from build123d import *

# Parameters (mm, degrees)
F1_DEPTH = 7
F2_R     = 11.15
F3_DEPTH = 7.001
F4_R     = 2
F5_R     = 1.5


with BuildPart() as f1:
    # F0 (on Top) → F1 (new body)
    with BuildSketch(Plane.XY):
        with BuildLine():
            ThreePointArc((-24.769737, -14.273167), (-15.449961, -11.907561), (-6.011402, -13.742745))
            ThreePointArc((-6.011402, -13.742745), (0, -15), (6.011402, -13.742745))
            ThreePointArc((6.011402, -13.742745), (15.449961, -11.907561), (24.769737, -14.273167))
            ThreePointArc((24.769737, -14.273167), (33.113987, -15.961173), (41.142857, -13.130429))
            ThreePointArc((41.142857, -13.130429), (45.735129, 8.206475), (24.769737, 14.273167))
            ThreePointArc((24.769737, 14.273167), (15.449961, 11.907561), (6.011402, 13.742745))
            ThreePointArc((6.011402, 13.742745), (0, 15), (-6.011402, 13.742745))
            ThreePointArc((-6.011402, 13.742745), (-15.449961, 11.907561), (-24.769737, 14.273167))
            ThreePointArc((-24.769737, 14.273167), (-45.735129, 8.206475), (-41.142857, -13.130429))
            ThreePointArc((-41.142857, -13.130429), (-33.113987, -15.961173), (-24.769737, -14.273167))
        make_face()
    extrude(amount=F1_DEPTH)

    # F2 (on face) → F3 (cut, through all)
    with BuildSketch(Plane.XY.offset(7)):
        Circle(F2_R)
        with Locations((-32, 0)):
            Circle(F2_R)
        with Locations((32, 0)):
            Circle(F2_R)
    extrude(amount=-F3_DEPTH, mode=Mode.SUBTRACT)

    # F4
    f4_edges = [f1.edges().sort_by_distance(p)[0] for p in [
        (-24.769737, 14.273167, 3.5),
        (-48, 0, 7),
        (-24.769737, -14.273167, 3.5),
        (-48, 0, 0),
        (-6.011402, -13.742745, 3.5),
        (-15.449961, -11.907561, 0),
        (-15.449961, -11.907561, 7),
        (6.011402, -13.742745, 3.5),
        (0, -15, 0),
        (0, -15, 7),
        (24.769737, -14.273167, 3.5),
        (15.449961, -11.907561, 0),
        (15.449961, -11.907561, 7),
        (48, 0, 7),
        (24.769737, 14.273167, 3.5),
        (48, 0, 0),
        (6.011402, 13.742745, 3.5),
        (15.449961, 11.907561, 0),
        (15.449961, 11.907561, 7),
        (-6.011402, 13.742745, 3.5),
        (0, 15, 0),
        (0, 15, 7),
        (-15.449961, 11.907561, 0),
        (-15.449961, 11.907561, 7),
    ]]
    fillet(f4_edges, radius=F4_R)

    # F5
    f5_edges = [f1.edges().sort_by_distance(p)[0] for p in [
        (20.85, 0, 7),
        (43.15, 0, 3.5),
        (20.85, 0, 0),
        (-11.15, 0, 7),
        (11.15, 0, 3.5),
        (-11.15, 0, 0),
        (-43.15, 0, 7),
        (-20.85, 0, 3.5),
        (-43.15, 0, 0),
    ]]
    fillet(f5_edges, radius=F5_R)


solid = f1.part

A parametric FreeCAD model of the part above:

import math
import FreeCAD as App
import Part
import Sketcher

V = App.Vector


def edges_at(feature, points):
    """Names of the edges that pass closest to the given points."""
    edges = feature.Shape.Edges
    near = lambda p: min(range(len(edges)), key=lambda i: edges[i].distToShape(Part.Vertex(*p))[0])
    return sorted({f"Edge{near(p) + 1}" for p in points})

doc = App.newDocument("Part")
params = doc.addObject("Spreadsheet::Sheet", "Params")
for row, (alias, value) in enumerate([
    ("sketch1_radius", "16 mm"),
    ("pad1_length", "7 mm"),
    ("sketch2_diameter", "22.3 mm"),
    ("fillet_radius", "2 mm"),
    ("fillet2_radius", "1.5 mm"),
], start=1):
    params.set(f"A{row}", alias)
    params.set(f"B{row}", "=" + value)
    params.setAlias(f"B{row}", alias)

body = doc.addObject("PartDesign::Body", "Body")

# Sketch on XY plane
sketch1 = doc.addObject("Sketcher::SketchObject", "Sketch")
body.addObject(sketch1)
sketch1.AttachmentSupport = (doc.XY_Plane, [""])
sketch1.MapMode = "FlatFace"
sketch1.addGeometry([
    Part.ArcOfCircle(Part.Circle(V(-15, -34, 0), V(0, 0, 1), 22), math.radians(66), math.radians(117)),  # 0
    Part.ArcOfCircle(Part.Circle(V(0, 0, 0), V(0, 0, 1), 15), math.radians(-114), math.radians(-66)),  # 1
    Part.ArcOfCircle(Part.Circle(V(15, -34, 0), V(0, 0, 1), 22), math.radians(63), math.radians(114)),  # 2
    Part.ArcOfCircle(Part.Circle(V(32, 0, 0), V(0, 0, 1), 16), math.radians(-117), math.radians(-55)),  # 3
    Part.ArcOfCircle(Part.Circle(V(32, 0, 0), V(0, 0, 1), 16), math.radians(-55), math.radians(117)),  # 4
    Part.ArcOfCircle(Part.Circle(V(15, 34, 0), V(0, 0, 1), 22), math.radians(-114), math.radians(-63)),  # 5
    Part.ArcOfCircle(Part.Circle(V(0, 0, 0), V(0, 0, 1), 15), math.radians(66), math.radians(114)),  # 6
    Part.ArcOfCircle(Part.Circle(V(-15, 34, 0), V(0, 0, 1), 22), math.radians(-117), math.radians(-66)),  # 7
    Part.ArcOfCircle(Part.Circle(V(-32, 0, 0), V(0, 0, 1), 16), math.radians(63), math.radians(235)),  # 8
    Part.ArcOfCircle(Part.Circle(V(-32, 0, 0), V(0, 0, 1), 16), math.radians(-125), math.radians(-63)),  # 9
], False)
sketch1.addConstraint([
    Sketcher.Constraint("Tangent", 0, 1, 1, 1),
    Sketcher.Constraint("Tangent", 1, 2, 2, 2),
    Sketcher.Constraint("Tangent", 2, 1, 3, 1),
    Sketcher.Constraint("Tangent", 3, 2, 4, 1),
    Sketcher.Constraint("Tangent", 4, 2, 5, 2),
    Sketcher.Constraint("Tangent", 5, 1, 6, 1),
    Sketcher.Constraint("Tangent", 6, 2, 7, 2),
    Sketcher.Constraint("Tangent", 7, 1, 8, 1),
    Sketcher.Constraint("Tangent", 8, 2, 9, 1),
    Sketcher.Constraint("Tangent", 9, 2, 0, 2),
    Sketcher.Constraint("Coincident", 1, 3, -1, 1),
    Sketcher.Constraint("Coincident", 6, 3, -1, 1),
    Sketcher.Constraint("Equal", 0, 2),
    Sketcher.Constraint("Equal", 2, 5),
    Sketcher.Constraint("Equal", 1, 6),
    Sketcher.Constraint("Equal", 5, 7),
    Sketcher.Constraint("Equal", 4, 8),
    Sketcher.Constraint("Equal", 3, 9),
    Sketcher.Constraint("Symmetric", 3, 3, 8, 3, -1, 1),
    Sketcher.Constraint("Symmetric", 3, 3, 9, 3, -2),
    Sketcher.Constraint("Horizontal", 3, 2, 8, 2),
    Sketcher.Constraint("Radius", 4, 16.0),
    Sketcher.Constraint("DistanceX", -1, 1, 3, 3, 32.0),
    Sketcher.Constraint("Radius", 0, 21.999997),
    Sketcher.Constraint("Radius", 1, 14.999998),
    Sketcher.Constraint("DistanceY", 3, 2, -1, 1, 13.130429),
])
sketch1.setExpression("Constraints[21]", "Params.sketch1_radius")
pad1 = doc.addObject("PartDesign::Pad", "Pad")
body.addObject(pad1)
pad1.Profile = sketch1
pad1.setExpression("Length", "Params.pad1_length")

# Sketch on XY plane
sketch2 = doc.addObject("Sketcher::SketchObject", "Sketch001")
body.addObject(sketch2)
sketch2.AttachmentSupport = (doc.XY_Plane, [""])
sketch2.MapMode = "FlatFace"
sketch2.AttachmentOffset = App.Placement(V(0, 0, 7), App.Rotation())
sketch2.addGeometry([
    Part.Circle(V(0, 0, 0), V(0, 0, 1), 11),
    Part.Circle(V(-32, 0, 0), V(0, 0, 1), 11),
    Part.Circle(V(32, 0, 0), V(0, 0, 1), 11),
], False)
sketch2.addConstraint([
    Sketcher.Constraint("Coincident", 0, 3, -1, 1),
    Sketcher.Constraint("Equal", 0, 1),
    Sketcher.Constraint("Equal", 1, 2),
    Sketcher.Constraint("Symmetric", 1, 3, 2, 3, -1, 1),
    Sketcher.Constraint("PointOnObject", 1, 3, -1),
    Sketcher.Constraint("Diameter", 0, 22.3),
    Sketcher.Constraint("DistanceX", 1, 3, -1, 1, 32.0),
])
sketch2.setExpression("Constraints[5]", "Params.sketch2_diameter")
pocket1 = doc.addObject("PartDesign::Pocket", "Pocket")
body.addObject(pocket1)
pocket1.Profile = sketch2
pocket1.Type = "ThroughAll"
doc.recompute()

fillet = doc.addObject("PartDesign::Fillet", "Fillet")
body.addObject(fillet)
fillet.Base = (pocket1, edges_at(pocket1, [
    (-24.77, 14.273, 3.5),
    (-45.735, 8.206, 7),
    (-24.77, -14.273, 3.5),
    (-45.735, 8.206, 0),
    (-6.011, -13.743, 3.5),
    (-15.45, -11.908, 0),
    (-15.45, -11.908, 7),
    (6.011, -13.743, 3.5),
    (0, -15, 0),
    (0, -15, 7),
    (24.77, -14.273, 3.5),
    (15.45, -11.908, 0),
    (15.45, -11.908, 7),
    (45.735, 8.206, 7),
    (24.77, 14.273, 3.5),
    (45.735, 8.206, 0),
    (6.011, 13.743, 3.5),
    (15.45, 11.908, 0),
    (15.45, 11.908, 7),
    (-6.011, 13.743, 3.5),
    (0, 15, 0),
    (0, 15, 7),
    (-15.45, 11.908, 0),
    (-15.45, 11.908, 7),
]))
fillet.setExpression("Radius", "Params.fillet_radius")
doc.recompute()

fillet2 = doc.addObject("PartDesign::Fillet", "Fillet001")
body.addObject(fillet2)
fillet2.Base = (fillet, edges_at(fillet, [
    (20.85, 0, 7),
    (43.15, 0, 3.5),
    (20.85, 0, 0),
    (-11.15, 0, 7),
    (11.15, 0, 3.5),
    (-11.15, 0, 0),
    (-43.15, 0, 7),
    (-20.85, 0, 3.5),
    (-43.15, 0, 0),
]))
fillet2.setExpression("Radius", "Params.fillet2_radius")

doc.recompute()
